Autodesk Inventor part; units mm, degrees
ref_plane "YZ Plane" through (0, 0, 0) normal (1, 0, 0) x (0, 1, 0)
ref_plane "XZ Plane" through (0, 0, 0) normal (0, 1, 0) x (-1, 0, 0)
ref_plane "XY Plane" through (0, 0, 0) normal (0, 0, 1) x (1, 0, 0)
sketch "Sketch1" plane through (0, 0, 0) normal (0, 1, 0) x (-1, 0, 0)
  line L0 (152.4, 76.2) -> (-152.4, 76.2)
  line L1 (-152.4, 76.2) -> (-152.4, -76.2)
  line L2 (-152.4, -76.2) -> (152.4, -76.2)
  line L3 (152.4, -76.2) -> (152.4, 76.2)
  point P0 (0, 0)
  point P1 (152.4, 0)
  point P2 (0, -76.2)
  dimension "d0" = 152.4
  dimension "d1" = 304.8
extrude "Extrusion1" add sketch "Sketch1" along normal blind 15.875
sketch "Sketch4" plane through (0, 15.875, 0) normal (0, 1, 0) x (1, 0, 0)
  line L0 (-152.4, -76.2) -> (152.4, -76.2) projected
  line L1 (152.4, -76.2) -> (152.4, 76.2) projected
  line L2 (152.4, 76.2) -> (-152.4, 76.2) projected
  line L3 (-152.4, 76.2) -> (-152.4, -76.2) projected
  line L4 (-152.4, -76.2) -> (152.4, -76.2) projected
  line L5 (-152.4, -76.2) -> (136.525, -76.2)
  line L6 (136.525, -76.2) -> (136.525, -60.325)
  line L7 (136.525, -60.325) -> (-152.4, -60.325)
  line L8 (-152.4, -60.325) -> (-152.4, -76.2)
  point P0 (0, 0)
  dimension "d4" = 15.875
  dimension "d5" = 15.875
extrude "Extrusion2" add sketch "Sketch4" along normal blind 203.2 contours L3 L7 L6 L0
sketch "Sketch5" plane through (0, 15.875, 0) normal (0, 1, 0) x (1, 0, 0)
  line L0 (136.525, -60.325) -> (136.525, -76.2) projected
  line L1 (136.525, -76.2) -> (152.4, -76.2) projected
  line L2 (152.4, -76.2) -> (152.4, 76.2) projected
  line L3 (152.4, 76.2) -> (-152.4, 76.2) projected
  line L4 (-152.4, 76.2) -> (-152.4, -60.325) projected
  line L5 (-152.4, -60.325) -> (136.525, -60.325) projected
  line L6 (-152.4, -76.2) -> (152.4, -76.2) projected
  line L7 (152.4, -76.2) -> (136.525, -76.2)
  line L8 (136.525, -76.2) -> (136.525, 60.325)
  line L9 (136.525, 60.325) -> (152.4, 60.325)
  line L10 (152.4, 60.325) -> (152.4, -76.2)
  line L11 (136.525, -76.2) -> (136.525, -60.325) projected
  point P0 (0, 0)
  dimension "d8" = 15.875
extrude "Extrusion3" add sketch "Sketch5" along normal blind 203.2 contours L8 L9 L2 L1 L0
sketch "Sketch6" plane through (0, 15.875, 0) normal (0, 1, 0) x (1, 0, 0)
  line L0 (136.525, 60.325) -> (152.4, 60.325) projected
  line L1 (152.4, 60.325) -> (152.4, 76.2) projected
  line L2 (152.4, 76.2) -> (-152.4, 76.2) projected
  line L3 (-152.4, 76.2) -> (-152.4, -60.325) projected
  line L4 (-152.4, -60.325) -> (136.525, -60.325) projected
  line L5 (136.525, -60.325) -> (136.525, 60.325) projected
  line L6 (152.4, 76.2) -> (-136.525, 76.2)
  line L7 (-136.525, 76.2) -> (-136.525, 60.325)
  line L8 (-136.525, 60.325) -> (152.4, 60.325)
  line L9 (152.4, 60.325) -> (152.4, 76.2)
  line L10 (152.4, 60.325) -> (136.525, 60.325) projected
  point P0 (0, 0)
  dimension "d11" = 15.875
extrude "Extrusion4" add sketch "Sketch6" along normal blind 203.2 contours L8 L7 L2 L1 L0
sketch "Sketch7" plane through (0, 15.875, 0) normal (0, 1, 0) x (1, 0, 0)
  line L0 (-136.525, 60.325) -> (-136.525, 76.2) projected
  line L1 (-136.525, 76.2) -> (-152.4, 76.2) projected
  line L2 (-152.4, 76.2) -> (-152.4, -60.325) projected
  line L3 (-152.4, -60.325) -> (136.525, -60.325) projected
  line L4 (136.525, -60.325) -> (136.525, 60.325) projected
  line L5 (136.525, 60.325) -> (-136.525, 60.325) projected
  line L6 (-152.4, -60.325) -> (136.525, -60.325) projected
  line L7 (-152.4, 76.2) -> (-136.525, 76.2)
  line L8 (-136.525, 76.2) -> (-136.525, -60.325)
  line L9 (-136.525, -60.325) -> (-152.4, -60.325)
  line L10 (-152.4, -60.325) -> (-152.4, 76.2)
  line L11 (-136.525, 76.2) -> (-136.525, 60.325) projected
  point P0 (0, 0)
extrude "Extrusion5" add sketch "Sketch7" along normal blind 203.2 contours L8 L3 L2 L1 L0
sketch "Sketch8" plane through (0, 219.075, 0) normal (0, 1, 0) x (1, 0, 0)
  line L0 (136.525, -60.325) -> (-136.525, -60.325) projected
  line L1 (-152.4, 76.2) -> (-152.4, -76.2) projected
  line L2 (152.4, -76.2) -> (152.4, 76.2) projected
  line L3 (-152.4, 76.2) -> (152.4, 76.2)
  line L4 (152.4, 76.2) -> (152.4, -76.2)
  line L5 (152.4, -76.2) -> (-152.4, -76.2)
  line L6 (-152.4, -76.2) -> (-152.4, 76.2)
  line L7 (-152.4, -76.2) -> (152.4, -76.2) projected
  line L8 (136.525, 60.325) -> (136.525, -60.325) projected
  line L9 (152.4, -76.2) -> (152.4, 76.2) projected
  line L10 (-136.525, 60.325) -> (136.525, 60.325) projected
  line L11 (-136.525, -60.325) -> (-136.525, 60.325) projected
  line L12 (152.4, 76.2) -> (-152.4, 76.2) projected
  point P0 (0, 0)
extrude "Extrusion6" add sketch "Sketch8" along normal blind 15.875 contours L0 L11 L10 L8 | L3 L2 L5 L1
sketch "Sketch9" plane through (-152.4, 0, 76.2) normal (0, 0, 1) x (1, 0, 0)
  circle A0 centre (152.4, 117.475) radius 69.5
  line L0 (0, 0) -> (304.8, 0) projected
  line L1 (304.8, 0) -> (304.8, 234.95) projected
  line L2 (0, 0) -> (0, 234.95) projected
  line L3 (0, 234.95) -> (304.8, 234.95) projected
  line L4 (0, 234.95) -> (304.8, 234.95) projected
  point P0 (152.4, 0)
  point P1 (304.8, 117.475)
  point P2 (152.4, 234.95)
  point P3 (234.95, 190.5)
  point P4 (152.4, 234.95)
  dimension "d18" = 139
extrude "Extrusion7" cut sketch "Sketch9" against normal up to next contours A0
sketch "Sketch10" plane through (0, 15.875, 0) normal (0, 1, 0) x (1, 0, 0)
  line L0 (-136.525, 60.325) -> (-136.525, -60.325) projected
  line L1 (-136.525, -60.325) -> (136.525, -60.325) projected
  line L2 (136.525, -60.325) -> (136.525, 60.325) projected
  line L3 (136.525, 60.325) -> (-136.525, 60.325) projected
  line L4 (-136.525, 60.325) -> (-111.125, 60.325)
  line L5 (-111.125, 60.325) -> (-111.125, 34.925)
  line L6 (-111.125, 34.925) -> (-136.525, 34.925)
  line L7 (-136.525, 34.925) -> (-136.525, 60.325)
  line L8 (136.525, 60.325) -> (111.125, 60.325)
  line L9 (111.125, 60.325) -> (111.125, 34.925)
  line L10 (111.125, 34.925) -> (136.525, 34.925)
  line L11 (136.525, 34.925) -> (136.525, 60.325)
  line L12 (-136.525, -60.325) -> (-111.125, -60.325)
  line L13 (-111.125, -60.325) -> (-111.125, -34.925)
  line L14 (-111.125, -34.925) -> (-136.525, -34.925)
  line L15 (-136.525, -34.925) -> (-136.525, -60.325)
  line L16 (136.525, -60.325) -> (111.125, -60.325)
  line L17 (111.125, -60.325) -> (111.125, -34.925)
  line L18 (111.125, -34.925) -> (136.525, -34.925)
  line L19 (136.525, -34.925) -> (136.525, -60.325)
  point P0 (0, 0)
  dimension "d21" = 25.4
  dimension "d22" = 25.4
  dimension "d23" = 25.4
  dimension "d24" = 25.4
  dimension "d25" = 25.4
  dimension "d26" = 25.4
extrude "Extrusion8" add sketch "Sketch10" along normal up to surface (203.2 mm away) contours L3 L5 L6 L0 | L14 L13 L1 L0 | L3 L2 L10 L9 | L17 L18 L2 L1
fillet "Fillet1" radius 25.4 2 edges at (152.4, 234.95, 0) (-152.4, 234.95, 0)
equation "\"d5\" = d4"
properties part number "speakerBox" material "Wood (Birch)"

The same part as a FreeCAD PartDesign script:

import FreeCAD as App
import Part
import Sketcher

V = App.Vector
Q = App.Units.Quantity


def edges_at(feature, points):
    """Names of the edges that pass closest to the given points."""
    edges = feature.Shape.Edges
    near = lambda p: min(range(len(edges)), key=lambda i: edges[i].distToShape(Part.Vertex(*p))[0])
    return sorted({f"Edge{near(p) + 1}" for p in points})


def add_polygon(sketch, points):
    """Adds a closed chain of lines whose ends are joined by coincident constraints."""
    first, n = sketch.GeometryCount, len(points)
    for a, b in zip(points, points[1:] + points[:1]):
        sketch.addGeometry(Part.LineSegment(App.Vector(*a, 0), App.Vector(*b, 0)), False)
    for i in range(n):
        sketch.addConstraint(Sketcher.Constraint("Coincident", first + i, 2, first + (i + 1) % n, 1))

doc = App.newDocument("Part")
body = doc.addObject("PartDesign::Body", "Body")

# Sketch on XZ plane
sketch1 = body.newObject("Sketcher::SketchObject", "Sketch")
sketch1.AttachmentSupport = (doc.getObject("XZ_Plane"), [""])
sketch1.MapMode = "FlatFace"
add_polygon(sketch1, [(-152.4, -76.2), (-152.4, 76.2), (152.4, 76.2), (152.4, -76.2)])  # lines 0-3
sketch1.addConstraint(Sketcher.Constraint("Vertical", 0))
sketch1.addConstraint(Sketcher.Constraint("Horizontal", 1))
sketch1.addConstraint(Sketcher.Constraint("Vertical", 2))
sketch1.addConstraint(Sketcher.Constraint("Horizontal", 3))
sketch1.addConstraint(Sketcher.Constraint("Symmetric", 0, 2, 2, 2, -1, 1))
sketch1.addConstraint(Sketcher.Constraint("DistanceX", 1, 1, 1, 2, Q("12 in")))
sketch1.addConstraint(Sketcher.Constraint("DistanceY", 0, 1, 0, 2, Q("6 in")))
pad1 = body.newObject("PartDesign::Pad", "Pad")
pad1.Profile = sketch1
pad1.Length = Q("0.625 in")
pad1.Reversed = True

# Sketch on XZ plane
sketch2 = body.newObject("Sketcher::SketchObject", "Sketch001")
sketch2.AttachmentSupport = (doc.getObject("XZ_Plane"), [""])
sketch2.MapMode = "FlatFace"
sketch2.AttachmentOffset = App.Placement(V(0, 0, -0.625 * 25.4), App.Rotation())
add_polygon(sketch2, [(-152.4, 60.325), (-152.4, 76.2), (136.525, 76.2), (136.525, 60.325)])  # lines 0-3
sketch2.addConstraint(Sketcher.Constraint("Vertical", 0))
sketch2.addConstraint(Sketcher.Constraint("Horizontal", 1))
sketch2.addConstraint(Sketcher.Constraint("Vertical", 2))
sketch2.addConstraint(Sketcher.Constraint("Horizontal", 3))
sketch2.addConstraint(Sketcher.Constraint("DistanceY", 0, 1, 0, 2, Q("0.625 in")))
sketch2.addConstraint(Sketcher.Constraint("DistanceX", 0, 2, -1, 1, Q("6 in")))
sketch2.addConstraint(Sketcher.Constraint("DistanceY", -1, 1, 0, 2, Q("3 in")))
sketch2.addConstraint(Sketcher.Constraint("DistanceX", 1, 1, 1, 2, Q("11.375 in")))
pad2 = body.newObject("PartDesign::Pad", "Pad001")
pad2.Profile = sketch2
pad2.Length = Q("8 in")
pad2.Reversed = True

# Sketch on XZ plane
sketch3 = body.newObject("Sketcher::SketchObject", "Sketch002")
sketch3.AttachmentSupport = (doc.getObject("XZ_Plane"), [""])
sketch3.MapMode = "FlatFace"
sketch3.AttachmentOffset = App.Placement(V(0, 0, -0.625 * 25.4), App.Rotation())
add_polygon(sketch3, [(136.525, -60.325), (136.525, 76.2), (152.4, 76.2), (152.4, -60.325)])  # lines 0-3
sketch3.addConstraint(Sketcher.Constraint("Vertical", 0))
sketch3.addConstraint(Sketcher.Constraint("Horizontal", 1))
sketch3.addConstraint(Sketcher.Constraint("Vertical", 2))
sketch3.addConstraint(Sketcher.Constraint("Horizontal", 3))
sketch3.addConstraint(Sketcher.Constraint("DistanceX", 1, 1, 1, 2, Q("0.625 in")))
sketch3.addConstraint(Sketcher.Constraint("DistanceY", -1, 1, 0, 2, Q("3 in")))
sketch3.addConstraint(Sketcher.Constraint("DistanceX", -1, 1, 1, 2, Q("6 in")))
sketch3.addConstraint(Sketcher.Constraint("DistanceY", 0, 1, 0, 2, Q("5.375 in")))
pad3 = body.newObject("PartDesign::Pad", "Pad002")
pad3.Profile = sketch3
pad3.Length = Q("8 in")
pad3.Reversed = True

# Sketch on XZ plane
sketch4 = body.newObject("Sketcher::SketchObject", "Sketch003")
sketch4.AttachmentSupport = (doc.getObject("XZ_Plane"), [""])
sketch4.MapMode = "FlatFace"
sketch4.AttachmentOffset = App.Placement(V(0, 0, -0.625 * 25.4), App.Rotation())
add_polygon(sketch4, [(-136.525, -60.325), (152.4, -60.325), (152.4, -76.2), (-136.525, -76.2)])  # lines 0-3
sketch4.addConstraint(Sketcher.Constraint("Horizontal", 0))
sketch4.addConstraint(Sketcher.Constraint("Vertical", 1))
sketch4.addConstraint(Sketcher.Constraint("Horizontal", 2))
sketch4.addConstraint(Sketcher.Constraint("Vertical", 3))
sketch4.addConstraint(Sketcher.Constraint("DistanceY", 1, 2, 1, 1, Q("0.625 in")))
sketch4.addConstraint(Sketcher.Constraint("DistanceX", -1, 1, 0, 2, Q("6 in")))
sketch4.addConstraint(Sketcher.Constraint("DistanceY", 1, 2, -1, 1, Q("3 in")))
sketch4.addConstraint(Sketcher.Constraint("DistanceX", 0, 1, 0, 2, Q("11.375 in")))
pad4 = body.newObject("PartDesign::Pad", "Pad003")
pad4.Profile = sketch4
pad4.Length = Q("8 in")
pad4.Reversed = True

# Sketch on XZ plane
sketch5 = body.newObject("Sketcher::SketchObject", "Sketch004")
sketch5.AttachmentSupport = (doc.getObject("XZ_Plane"), [""])
sketch5.MapMode = "FlatFace"
sketch5.AttachmentOffset = App.Placement(V(0, 0, -0.625 * 25.4), App.Rotation())
add_polygon(sketch5, [(-136.525, 60.325), (-136.525, -76.2), (-152.4, -76.2), (-152.4, 60.325)])  # lines 0-3
sketch5.addConstraint(Sketcher.Constraint("Vertical", 0))
sketch5.addConstraint(Sketcher.Constraint("Horizontal", 1))
sketch5.addConstraint(Sketcher.Constraint("Vertical", 2))
sketch5.addConstraint(Sketcher.Constraint("Horizontal", 3))
sketch5.addConstraint(Sketcher.Constraint("DistanceY", 0, 2, -1, 1, Q("3 in")))
sketch5.addConstraint(Sketcher.Constraint("DistanceX", 1, 2, -1, 1, Q("6 in")))
sketch5.addConstraint(Sketcher.Constraint("DistanceX", 1, 2, 1, 1, Q("0.625 in")))
sketch5.addConstraint(Sketcher.Constraint("DistanceY", 0, 2, 0, 1, Q("5.375 in")))
pad5 = body.newObject("PartDesign::Pad", "Pad004")
pad5.Profile = sketch5
pad5.Length = Q("8 in")
pad5.Reversed = True

# Sketch on XZ plane
sketch6 = body.newObject("Sketcher::SketchObject", "Sketch005")
sketch6.AttachmentSupport = (doc.getObject("XZ_Plane"), [""])
sketch6.MapMode = "FlatFace"
sketch6.AttachmentOffset = App.Placement(V(0, 0, -8.625 * 25.4), App.Rotation())
add_polygon(sketch6, [(152.4, -76.2), (-152.4, -76.2), (-152.4, 76.2), (152.4, 76.2)])  # lines 0-3
sketch6.addConstraint(Sketcher.Constraint("Horizontal", 0))
sketch6.addConstraint(Sketcher.Constraint("Vertical", 1))
sketch6.addConstraint(Sketcher.Constraint("Horizontal", 2))
sketch6.addConstraint(Sketcher.Constraint("Vertical", 3))
sketch6.addConstraint(Sketcher.Constraint("Symmetric", 0, 2, 2, 2, -1, 1))
sketch6.addConstraint(Sketcher.Constraint("DistanceX", 0, 2, 0, 1, Q("12 in")))
sketch6.addConstraint(Sketcher.Constraint("DistanceY", 1, 1, 1, 2, Q("6 in")))
pad6 = body.newObject("PartDesign::Pad", "Pad005")
pad6.Profile = sketch6
pad6.Length = Q("0.625 in")
pad6.Reversed = True

# Sketch on XY plane
sketch7 = body.newObject("Sketcher::SketchObject", "Sketch006")
sketch7.AttachmentSupport = (doc.getObject("XY_Plane"), [""])
sketch7.MapMode = "FlatFace"
sketch7.AttachmentOffset = App.Placement(V(0, 0, 3 * 25.4), App.Rotation())
sketch7.addGeometry(Part.Circle(V(0, 117.475, 0), V(0, 0, 1), 69.5), False)
sketch7.addConstraint(Sketcher.Constraint("PointOnObject", 0, 3, -2))
sketch7.addConstraint(Sketcher.Constraint("Diameter", 0, Q("139 mm")))
sketch7.addConstraint(Sketcher.Constraint("DistanceY", -1, 1, 0, 3, Q("4.625 in")))
pocket1 = body.newObject("PartDesign::Pocket", "Pocket")
pocket1.Profile = sketch7
pocket1.Type = "UpToFirst"

# Sketch on XZ plane
sketch8 = body.newObject("Sketcher::SketchObject", "Sketch007")
sketch8.AttachmentSupport = (doc.getObject("XZ_Plane"), [""])
sketch8.MapMode = "FlatFace"
sketch8.AttachmentOffset = App.Placement(V(0, 0, -0.625 * 25.4), App.Rotation())
add_polygon(sketch8, [(-111.125, -60.325), (-136.525, -60.325), (-136.525, -34.925), (-111.125, -34.925)])  # lines 0-3
add_polygon(sketch8, [(-111.125, 34.925), (-136.525, 34.925), (-136.525, 60.325), (-111.125, 60.325)])  # lines 4-7
add_polygon(sketch8, [(136.525, -60.325), (111.125, -60.325), (111.125, -34.925), (136.525, -34.925)])  # lines 8-11
add_polygon(sketch8, [(111.125, 34.925), (111.125, 60.325), (136.525, 60.325), (136.525, 34.925)])  # lines 12-15
sketch8.addConstraint(Sketcher.Constraint("Horizontal", 0))
sketch8.addConstraint(Sketcher.Constraint("Vertical", 1))
sketch8.addConstraint(Sketcher.Constraint("Horizontal", 2))
sketch8.addConstraint(Sketcher.Constraint("Vertical", 3))
sketch8.addConstraint(Sketcher.Constraint("Horizontal", 4))
sketch8.addConstraint(Sketcher.Constraint("Vertical", 5))
sketch8.addConstraint(Sketcher.Constraint("Horizontal", 6))
sketch8.addConstraint(Sketcher.Constraint("Vertical", 7))
sketch8.addConstraint(Sketcher.Constraint("Horizontal", 8))
sketch8.addConstraint(Sketcher.Constraint("Vertical", 9))
sketch8.addConstraint(Sketcher.Constraint("Horizontal", 10))
sketch8.addConstraint(Sketcher.Constraint("Vertical", 11))
sketch8.addConstraint(Sketcher.Constraint("Vertical", 12))
sketch8.addConstraint(Sketcher.Constraint("Horizontal", 13))
sketch8.addConstraint(Sketcher.Constraint("Vertical", 14))
sketch8.addConstraint(Sketcher.Constraint("Horizontal", 15))
sketch8.addConstraint(Sketcher.Constraint("Symmetric", 6, 2, 8, 2, -1, 1))
sketch8.addConstraint(Sketcher.Constraint("Symmetric", 4, 2, 10, 2, -1, 1))
sketch8.addConstraint(Sketcher.Constraint("Symmetric", 3, 2, 12, 2, -1, 1))
sketch8.addConstraint(Sketcher.Constraint("Symmetric", 1, 2, 14, 2, -1, 1))
sketch8.addConstraint(Sketcher.Constraint("Symmetric", 3, 2, 8, 2, -2))
sketch8.addConstraint(Sketcher.Constraint("Symmetric", 1, 2, 10, 2, -2))
sketch8.addConstraint(Sketcher.Constraint("Equal", 15, 1))
sketch8.addConstraint(Sketcher.Constraint("DistanceX", 0, 2, 0, 1, Q("1 in")))
sketch8.addConstraint(Sketcher.Constraint("DistanceY", 1, 2, 4, 2, Q("2.75 in")))
sketch8.addConstraint(Sketcher.Constraint("DistanceX", 3, 2, 8, 2, Q("8.75 in")))
pad7 = body.newObject("PartDesign::Pad", "Pad006")
pad7.Profile = sketch8
pad7.Length = Q("8 in")
pad7.Reversed = True
doc.recompute()

fillet = body.newObject("PartDesign::Fillet", "Fillet")
fillet.Base = (pad7, edges_at(pad7, [(152.4, 234.95, 0), (-152.4, 234.95, 0)]))
fillet.Radius = Q("1 in")

doc.recompute()
